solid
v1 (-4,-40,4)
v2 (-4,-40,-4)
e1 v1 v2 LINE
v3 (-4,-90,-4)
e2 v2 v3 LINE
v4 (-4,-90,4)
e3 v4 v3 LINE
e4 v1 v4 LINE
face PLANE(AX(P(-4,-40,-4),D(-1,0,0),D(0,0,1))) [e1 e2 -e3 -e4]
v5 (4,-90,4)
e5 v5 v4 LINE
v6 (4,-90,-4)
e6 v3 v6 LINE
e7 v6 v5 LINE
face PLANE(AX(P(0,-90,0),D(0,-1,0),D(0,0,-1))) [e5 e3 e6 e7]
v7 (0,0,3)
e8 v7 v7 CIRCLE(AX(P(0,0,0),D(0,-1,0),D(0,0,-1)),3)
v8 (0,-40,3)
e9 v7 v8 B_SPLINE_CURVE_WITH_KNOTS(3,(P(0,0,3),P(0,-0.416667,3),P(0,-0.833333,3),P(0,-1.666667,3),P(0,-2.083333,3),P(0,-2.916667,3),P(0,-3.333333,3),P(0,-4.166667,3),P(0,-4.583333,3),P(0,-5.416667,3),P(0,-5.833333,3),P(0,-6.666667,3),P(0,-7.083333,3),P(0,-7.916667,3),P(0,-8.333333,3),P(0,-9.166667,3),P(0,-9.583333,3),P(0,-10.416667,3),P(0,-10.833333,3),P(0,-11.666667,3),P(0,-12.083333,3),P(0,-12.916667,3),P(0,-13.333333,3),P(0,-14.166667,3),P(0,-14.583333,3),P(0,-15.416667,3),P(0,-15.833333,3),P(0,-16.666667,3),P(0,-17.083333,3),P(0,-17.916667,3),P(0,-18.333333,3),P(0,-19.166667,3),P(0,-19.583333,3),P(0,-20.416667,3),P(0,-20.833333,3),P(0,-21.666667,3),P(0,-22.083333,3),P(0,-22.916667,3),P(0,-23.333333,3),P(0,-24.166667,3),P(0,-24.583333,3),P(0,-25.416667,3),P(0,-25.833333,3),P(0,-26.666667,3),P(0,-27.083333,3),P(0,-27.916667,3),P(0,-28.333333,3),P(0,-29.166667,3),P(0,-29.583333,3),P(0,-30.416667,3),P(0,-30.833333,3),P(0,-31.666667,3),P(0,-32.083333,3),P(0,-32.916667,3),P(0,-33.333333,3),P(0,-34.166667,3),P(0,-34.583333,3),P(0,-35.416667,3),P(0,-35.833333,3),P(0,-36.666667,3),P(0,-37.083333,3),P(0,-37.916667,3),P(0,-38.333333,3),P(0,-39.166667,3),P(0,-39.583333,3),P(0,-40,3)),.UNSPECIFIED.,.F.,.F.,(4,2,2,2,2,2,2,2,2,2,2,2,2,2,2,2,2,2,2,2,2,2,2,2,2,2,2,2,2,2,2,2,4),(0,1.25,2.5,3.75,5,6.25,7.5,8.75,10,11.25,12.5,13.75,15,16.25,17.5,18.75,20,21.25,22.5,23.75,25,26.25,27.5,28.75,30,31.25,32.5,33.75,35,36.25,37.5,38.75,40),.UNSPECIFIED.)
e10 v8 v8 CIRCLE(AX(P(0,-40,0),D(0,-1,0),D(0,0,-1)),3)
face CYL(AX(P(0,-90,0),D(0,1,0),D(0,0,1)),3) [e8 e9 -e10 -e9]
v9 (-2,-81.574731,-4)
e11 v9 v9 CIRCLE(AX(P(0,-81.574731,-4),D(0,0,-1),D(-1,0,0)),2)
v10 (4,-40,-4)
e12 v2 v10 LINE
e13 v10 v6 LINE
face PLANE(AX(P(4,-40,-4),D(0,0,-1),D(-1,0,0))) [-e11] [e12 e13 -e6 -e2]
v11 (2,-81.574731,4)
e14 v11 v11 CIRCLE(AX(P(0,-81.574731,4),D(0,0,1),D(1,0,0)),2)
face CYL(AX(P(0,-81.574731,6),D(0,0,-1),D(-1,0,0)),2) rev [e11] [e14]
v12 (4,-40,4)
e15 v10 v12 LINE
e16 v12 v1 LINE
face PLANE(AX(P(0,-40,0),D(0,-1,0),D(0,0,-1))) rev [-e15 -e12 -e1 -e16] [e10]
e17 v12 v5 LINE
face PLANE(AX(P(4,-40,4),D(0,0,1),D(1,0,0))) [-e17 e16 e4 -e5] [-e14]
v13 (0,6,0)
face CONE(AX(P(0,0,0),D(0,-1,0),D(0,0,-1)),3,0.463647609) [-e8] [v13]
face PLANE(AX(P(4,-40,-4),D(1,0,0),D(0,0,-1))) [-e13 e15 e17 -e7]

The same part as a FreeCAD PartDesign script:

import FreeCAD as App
import Part
import Sketcher
from FreeCAD import Vector

doc = App.newDocument("Part")
body = doc.addObject("PartDesign::Body", "Body")

# Sketch on XY plane
sketch1 = body.newObject("Sketcher::SketchObject", "Sketch")
sketch1.AttachmentSupport = (doc.getObject("XY_Plane"), [""])
sketch1.MapMode = "FlatFace"
sketch1.addGeometry([
    Part.LineSegment(Vector(0, 0, 0), Vector(3, 0, 0)),
    Part.LineSegment(Vector(3, 0, 0), Vector(0, 6, 0)),
    Part.LineSegment(Vector(0, 6, 0), Vector(0, 0, 0)),
], False)
sketch1.addConstraint([
    Sketcher.Constraint("Coincident", 0, 2, 1, 1),
    Sketcher.Constraint("Coincident", 1, 2, 2, 1),
    Sketcher.Constraint("Coincident", 2, 2, 0, 1),
    Sketcher.Constraint("Horizontal", 0),
    Sketcher.Constraint("Vertical", 2),
    Sketcher.Constraint("Coincident", 2, 2, -1, 1),
    Sketcher.Constraint("DistanceX", 0, 1, 0, 2, 3.0),
    Sketcher.Constraint("DistanceY", 2, 2, 2, 1, 6.0),
])
revolution = body.newObject("PartDesign::Revolution", "Revolution")
revolution.Profile = sketch1
revolution.ReferenceAxis = (sketch1, ["V_Axis"])
revolution.Angle = 360

# Sketch on XZ plane
sketch2 = body.newObject("Sketcher::SketchObject", "Sketch001")
sketch2.AttachmentSupport = (doc.getObject("XZ_Plane"), [""])
sketch2.MapMode = "FlatFace"
sketch2.addGeometry(Part.Circle(Vector(0, 0, 0), Vector(0, 0, 1), 3), False)
sketch2.addConstraint([
    Sketcher.Constraint("Coincident", 0, 3, -1, 1),
    Sketcher.Constraint("Diameter", 0, 6.0),
])
pad1 = body.newObject("PartDesign::Pad", "Pad")
pad1.Profile = sketch2
pad1.Length = 90

# Sketch on XZ plane
sketch3 = body.newObject("Sketcher::SketchObject", "Sketch002")
sketch3.AttachmentSupport = (doc.getObject("XZ_Plane"), [""])
sketch3.MapMode = "FlatFace"
sketch3.AttachmentOffset = App.Placement(Vector(0, 0, 90), App.Rotation())
sketch3.addGeometry([
    Part.LineSegment(Vector(-4, 4, 0), Vector(-4, -4, 0)),
    Part.LineSegment(Vector(-4, -4, 0), Vector(4, -4, 0)),
    Part.LineSegment(Vector(4, -4, 0), Vector(4, 4, 0)),
    Part.LineSegment(Vector(4, 4, 0), Vector(-4, 4, 0)),
], False)
sketch3.addConstraint([
    Sketcher.Constraint("Coincident", 0, 2, 1, 1),
    Sketcher.Constraint("Coincident", 1, 2, 2, 1),
    Sketcher.Constraint("Coincident", 2, 2, 3, 1),
    Sketcher.Constraint("Coincident", 3, 2, 0, 1),
    Sketcher.Constraint("Vertical", 0),
    Sketcher.Constraint("Horizontal", 1),
    Sketcher.Constraint("Vertical", 2),
    Sketcher.Constraint("Horizontal", 3),
    Sketcher.Constraint("Symmetric", 0, 2, 2, 2, -1, 1),
    Sketcher.Constraint("Equal", 3, 0),
    Sketcher.Constraint("DistanceX", 1, 1, 1, 2, 8.0),
])
pad2 = body.newObject("PartDesign::Pad", "Pad001")
pad2.Profile = sketch3
pad2.Length = 50
pad2.Reversed = True

# Sketch on XY plane
sketch4 = body.newObject("Sketcher::SketchObject", "Sketch003")
sketch4.AttachmentSupport = (doc.getObject("XY_Plane"), [""])
sketch4.MapMode = "FlatFace"
sketch4.AttachmentOffset = App.Placement(Vector(0, 0, -4), App.Rotation())
sketch4.addGeometry(Part.Circle(Vector(0, -81.574731, 0), Vector(0, 0, 1), 2), False)
sketch4.addConstraint([
    Sketcher.Constraint("PointOnObject", 0, 3, -2),
    Sketcher.Constraint("Diameter", 0, 4.0),
    Sketcher.Constraint("DistanceY", 0, 3, -1, 1, 81.574731),
])
pocket1 = body.newObject("PartDesign::Pocket", "Pocket")
pocket1.Profile = sketch4
pocket1.Length = 10
pocket1.Reversed = True

doc.recompute()
